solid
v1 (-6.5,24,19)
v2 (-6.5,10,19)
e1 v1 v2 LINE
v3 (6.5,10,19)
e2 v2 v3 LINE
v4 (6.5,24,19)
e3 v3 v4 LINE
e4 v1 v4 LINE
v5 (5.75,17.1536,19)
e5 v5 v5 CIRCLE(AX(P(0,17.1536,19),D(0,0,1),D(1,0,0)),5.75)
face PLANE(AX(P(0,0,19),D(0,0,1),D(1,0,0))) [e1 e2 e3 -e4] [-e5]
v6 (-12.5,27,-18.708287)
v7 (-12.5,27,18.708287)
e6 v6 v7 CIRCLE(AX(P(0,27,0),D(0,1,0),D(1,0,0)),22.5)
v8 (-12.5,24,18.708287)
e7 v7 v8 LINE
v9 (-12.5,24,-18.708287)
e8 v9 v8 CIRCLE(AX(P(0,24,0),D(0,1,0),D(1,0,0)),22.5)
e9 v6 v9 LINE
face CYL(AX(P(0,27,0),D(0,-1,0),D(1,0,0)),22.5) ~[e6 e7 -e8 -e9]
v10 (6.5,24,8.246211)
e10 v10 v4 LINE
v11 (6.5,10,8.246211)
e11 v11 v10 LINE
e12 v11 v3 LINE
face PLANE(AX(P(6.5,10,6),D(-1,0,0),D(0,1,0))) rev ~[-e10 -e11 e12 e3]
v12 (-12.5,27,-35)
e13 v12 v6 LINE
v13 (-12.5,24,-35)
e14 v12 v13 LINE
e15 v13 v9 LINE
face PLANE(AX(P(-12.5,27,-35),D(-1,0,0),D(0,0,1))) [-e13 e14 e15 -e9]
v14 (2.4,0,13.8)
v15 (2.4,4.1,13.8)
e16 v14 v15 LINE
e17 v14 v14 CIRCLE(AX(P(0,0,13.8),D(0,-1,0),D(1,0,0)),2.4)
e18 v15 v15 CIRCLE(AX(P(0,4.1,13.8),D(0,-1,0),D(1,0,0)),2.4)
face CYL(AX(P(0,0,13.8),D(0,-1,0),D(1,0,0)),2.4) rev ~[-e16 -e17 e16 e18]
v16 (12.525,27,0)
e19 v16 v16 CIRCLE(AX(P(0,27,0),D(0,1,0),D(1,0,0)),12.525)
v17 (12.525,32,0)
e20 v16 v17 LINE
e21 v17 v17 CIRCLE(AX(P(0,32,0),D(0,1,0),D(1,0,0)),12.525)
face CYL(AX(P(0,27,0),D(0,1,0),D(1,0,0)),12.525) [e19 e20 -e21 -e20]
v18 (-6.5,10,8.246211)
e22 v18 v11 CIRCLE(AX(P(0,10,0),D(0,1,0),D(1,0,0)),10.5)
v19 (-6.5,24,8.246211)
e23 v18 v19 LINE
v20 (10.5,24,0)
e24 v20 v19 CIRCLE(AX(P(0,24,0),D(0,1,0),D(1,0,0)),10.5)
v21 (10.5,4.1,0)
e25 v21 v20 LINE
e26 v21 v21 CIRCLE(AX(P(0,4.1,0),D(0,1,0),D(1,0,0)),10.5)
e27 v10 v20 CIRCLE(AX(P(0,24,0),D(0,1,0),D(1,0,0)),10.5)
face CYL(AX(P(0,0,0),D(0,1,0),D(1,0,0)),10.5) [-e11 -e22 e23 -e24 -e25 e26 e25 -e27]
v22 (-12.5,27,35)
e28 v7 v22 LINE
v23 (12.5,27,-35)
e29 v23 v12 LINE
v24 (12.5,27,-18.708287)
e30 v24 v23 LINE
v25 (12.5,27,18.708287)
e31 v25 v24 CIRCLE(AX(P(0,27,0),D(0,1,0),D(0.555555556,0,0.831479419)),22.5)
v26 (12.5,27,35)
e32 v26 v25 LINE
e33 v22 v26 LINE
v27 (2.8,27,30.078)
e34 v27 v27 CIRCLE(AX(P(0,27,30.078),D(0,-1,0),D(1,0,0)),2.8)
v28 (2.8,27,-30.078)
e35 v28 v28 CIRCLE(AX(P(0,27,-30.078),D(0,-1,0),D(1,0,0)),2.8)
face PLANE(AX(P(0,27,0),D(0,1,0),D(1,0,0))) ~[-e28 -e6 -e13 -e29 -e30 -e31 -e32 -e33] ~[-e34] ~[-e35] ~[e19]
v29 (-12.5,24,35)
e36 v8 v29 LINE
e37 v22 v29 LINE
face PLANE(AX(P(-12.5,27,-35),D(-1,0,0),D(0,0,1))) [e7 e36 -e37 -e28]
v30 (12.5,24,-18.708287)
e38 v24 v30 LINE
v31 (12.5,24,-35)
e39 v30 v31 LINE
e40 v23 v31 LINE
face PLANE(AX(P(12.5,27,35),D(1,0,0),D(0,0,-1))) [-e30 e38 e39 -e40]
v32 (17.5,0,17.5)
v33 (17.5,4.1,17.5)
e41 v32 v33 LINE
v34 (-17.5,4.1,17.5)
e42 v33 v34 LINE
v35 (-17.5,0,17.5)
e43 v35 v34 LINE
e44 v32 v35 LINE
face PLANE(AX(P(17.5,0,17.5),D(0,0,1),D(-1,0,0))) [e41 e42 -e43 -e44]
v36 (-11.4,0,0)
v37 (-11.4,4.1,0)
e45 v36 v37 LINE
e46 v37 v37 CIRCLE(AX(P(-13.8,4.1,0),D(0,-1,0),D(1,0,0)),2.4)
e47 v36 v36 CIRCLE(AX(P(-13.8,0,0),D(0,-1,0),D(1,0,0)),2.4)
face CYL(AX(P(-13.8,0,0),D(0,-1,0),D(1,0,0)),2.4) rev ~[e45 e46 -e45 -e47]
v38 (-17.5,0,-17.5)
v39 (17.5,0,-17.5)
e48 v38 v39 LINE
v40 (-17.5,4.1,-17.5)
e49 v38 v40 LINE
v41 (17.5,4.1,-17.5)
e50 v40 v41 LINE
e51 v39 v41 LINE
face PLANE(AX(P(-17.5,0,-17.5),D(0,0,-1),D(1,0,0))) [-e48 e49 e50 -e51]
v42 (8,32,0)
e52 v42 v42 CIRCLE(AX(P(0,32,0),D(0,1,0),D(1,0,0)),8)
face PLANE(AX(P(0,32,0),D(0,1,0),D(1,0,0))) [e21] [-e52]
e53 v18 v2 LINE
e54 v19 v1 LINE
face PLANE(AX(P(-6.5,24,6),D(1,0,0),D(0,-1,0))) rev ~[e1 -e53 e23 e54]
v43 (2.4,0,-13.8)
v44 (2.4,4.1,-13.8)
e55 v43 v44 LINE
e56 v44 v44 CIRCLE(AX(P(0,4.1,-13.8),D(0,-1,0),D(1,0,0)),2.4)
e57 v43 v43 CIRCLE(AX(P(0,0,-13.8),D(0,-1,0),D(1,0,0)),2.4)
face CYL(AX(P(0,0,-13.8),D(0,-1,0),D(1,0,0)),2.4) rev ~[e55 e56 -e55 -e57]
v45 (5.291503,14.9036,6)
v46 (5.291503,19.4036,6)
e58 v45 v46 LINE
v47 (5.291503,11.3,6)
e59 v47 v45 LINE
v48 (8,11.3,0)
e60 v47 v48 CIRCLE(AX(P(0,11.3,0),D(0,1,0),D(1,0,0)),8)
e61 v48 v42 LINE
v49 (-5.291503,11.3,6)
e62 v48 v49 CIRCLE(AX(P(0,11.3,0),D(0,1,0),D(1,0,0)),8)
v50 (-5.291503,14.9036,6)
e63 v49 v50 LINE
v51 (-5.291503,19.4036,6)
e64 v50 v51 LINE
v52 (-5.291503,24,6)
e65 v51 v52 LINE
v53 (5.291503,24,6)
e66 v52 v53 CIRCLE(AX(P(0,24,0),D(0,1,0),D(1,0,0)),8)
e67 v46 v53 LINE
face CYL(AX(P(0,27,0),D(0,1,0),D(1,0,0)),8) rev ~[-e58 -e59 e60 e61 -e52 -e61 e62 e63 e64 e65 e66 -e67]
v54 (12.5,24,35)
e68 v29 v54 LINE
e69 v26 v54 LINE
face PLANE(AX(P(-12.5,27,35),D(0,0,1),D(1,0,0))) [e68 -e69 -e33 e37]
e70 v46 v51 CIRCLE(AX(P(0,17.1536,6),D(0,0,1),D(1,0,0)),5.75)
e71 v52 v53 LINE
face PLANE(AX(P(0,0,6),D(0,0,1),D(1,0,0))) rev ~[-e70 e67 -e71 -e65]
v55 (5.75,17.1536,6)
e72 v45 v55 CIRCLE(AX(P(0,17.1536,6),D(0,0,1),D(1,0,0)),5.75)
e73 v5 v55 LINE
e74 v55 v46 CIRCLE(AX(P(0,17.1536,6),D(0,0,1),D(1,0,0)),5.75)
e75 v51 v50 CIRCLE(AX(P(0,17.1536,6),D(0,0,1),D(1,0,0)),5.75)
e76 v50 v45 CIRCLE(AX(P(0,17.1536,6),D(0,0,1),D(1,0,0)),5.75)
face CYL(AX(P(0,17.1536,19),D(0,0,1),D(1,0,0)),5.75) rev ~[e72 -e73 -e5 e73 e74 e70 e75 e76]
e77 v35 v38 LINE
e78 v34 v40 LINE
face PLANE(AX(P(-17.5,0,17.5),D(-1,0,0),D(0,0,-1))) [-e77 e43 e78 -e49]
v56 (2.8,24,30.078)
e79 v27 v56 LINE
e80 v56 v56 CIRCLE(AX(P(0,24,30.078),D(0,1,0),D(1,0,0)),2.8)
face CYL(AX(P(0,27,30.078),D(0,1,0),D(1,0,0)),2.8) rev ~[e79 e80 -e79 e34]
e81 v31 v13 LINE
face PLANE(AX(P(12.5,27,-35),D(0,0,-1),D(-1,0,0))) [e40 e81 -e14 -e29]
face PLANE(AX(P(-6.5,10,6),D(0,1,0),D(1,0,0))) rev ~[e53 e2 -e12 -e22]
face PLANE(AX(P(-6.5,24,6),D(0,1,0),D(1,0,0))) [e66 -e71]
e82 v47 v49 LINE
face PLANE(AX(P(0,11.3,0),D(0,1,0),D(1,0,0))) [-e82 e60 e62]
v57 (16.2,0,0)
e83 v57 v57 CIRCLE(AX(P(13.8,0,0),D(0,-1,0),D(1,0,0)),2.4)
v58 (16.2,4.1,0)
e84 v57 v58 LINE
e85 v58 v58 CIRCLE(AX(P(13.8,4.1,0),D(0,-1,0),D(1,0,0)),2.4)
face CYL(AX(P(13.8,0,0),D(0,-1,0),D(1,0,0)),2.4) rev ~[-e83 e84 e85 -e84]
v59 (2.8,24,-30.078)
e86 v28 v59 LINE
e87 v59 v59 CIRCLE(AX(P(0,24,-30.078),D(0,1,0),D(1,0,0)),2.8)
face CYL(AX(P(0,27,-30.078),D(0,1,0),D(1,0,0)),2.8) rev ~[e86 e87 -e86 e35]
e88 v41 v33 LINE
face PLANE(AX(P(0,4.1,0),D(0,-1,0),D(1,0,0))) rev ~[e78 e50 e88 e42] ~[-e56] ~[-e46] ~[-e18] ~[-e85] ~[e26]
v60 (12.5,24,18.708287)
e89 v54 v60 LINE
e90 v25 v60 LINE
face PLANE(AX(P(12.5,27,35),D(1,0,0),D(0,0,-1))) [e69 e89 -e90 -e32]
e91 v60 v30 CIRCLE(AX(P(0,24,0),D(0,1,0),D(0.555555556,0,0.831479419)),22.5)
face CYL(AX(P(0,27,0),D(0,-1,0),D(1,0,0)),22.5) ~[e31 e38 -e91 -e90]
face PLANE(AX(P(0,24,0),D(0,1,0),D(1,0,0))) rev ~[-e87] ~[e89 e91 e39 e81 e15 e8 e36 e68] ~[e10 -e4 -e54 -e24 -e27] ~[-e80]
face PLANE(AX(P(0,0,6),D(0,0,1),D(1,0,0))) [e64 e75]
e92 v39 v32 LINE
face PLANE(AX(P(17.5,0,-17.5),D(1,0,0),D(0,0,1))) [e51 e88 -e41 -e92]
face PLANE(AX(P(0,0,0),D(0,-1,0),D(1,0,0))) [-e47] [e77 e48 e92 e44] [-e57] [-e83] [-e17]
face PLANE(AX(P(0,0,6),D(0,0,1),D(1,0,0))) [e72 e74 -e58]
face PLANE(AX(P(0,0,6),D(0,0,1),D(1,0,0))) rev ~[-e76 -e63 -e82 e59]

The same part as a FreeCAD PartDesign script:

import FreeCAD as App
import Part
import Sketcher
Q = App.Units.Quantity


def add_polygon(sketch, points):
    """Adds a closed chain of lines whose ends are joined by coincident constraints."""
    first, n = sketch.GeometryCount, len(points)
    for a, b in zip(points, points[1:] + points[:1]):
        sketch.addGeometry(Part.LineSegment(App.Vector(*a, 0), App.Vector(*b, 0)), False)
    for i in range(n):
        sketch.addConstraint(Sketcher.Constraint("Coincident", first + i, 2, first + (i + 1) % n, 1))

doc = App.newDocument("Part")
body = doc.addObject("PartDesign::Body", "Body")

# Sketch on XY plane
sketch1 = doc.addObject("Sketcher::SketchObject", "Sketch")
body.addObject(sketch1)
sketch1.AttachmentSupport = (doc.XY_Plane, [""])
sketch1.MapMode = "FlatFace"
add_polygon(sketch1, [(12.525, 27), (12.525, 32), (8, 32), (8, 0), (10.5, 0), (10.5, 24), (22.5, 24), (22.5, 27)])  # lines 0-7
sketch1.addConstraint([
    Sketcher.Constraint("Vertical", 0),
    Sketcher.Constraint("Horizontal", 1),
    Sketcher.Constraint("Vertical", 2),
    Sketcher.Constraint("Horizontal", 3),
    Sketcher.Constraint("Vertical", 4),
    Sketcher.Constraint("Horizontal", 5),
    Sketcher.Constraint("Vertical", 6),
    Sketcher.Constraint("Horizontal", 7),
    Sketcher.Constraint("PointOnObject", 2, 2, -1),
    Sketcher.Constraint("DistanceX", 5, 1, 5, 2, Q("12 mm")),
    Sketcher.Constraint("DistanceY", 0, 1, 0, 2, Q("5 mm")),
    Sketcher.Constraint("DistanceY", 2, 2, 2, 1, Q("32 mm")),
    Sketcher.Constraint("DistanceY", 4, 1, 4, 2, Q("24 mm")),
    Sketcher.Constraint("DistanceX", 3, 1, 3, 2, Q("2.5 mm")),
    Sketcher.Constraint("DistanceX", -1, 1, 1, 2, Q("8 mm")),
    Sketcher.Constraint("DistanceX", 1, 2, 1, 1, Q("4.525 mm")),
])
revolution = doc.addObject("PartDesign::Revolution", "Revolution")
body.addObject(revolution)
revolution.Profile = sketch1
revolution.ReferenceAxis = (sketch1, ["V_Axis"])
revolution.Angle = 360

# Sketch on XZ plane
sketch2 = doc.addObject("Sketcher::SketchObject", "Sketch001")
body.addObject(sketch2)
sketch2.AttachmentSupport = (doc.XZ_Plane, [""])
sketch2.MapMode = "FlatFace"
sketch2.AttachmentOffset = App.Placement(App.Vector(0, 0, -27), App.Rotation())
add_polygon(sketch2, [(12.5, 35), (12.5, -35), (-12.5, -35), (-12.5, 35)])  # lines 0-3
sketch2.addConstraint([
    Sketcher.Constraint("Vertical", 0),
    Sketcher.Constraint("Horizontal", 1),
    Sketcher.Constraint("Vertical", 2),
    Sketcher.Constraint("Horizontal", 3),
    Sketcher.Constraint("Symmetric", 0, 2, 2, 2, -1, 1),
    Sketcher.Constraint("DistanceX", 1, 2, 1, 1, Q("25 mm")),
    Sketcher.Constraint("DistanceY", 0, 2, 0, 1, Q("70 mm")),
])
pad1 = doc.addObject("PartDesign::Pad", "Pad")
body.addObject(pad1)
pad1.Profile = sketch2
pad1.Length = 3

# Sketch on XZ plane
sketch3 = doc.addObject("Sketcher::SketchObject", "Sketch002")
body.addObject(sketch3)
sketch3.AttachmentSupport = (doc.XZ_Plane, [""])
sketch3.MapMode = "FlatFace"
sketch3.AttachmentOffset = App.Placement(App.Vector(0, 0, -27), App.Rotation())
sketch3.addGeometry(Part.Circle(App.Vector(0, 0, 0), App.Vector(0, 0, 1), 8), False)
sketch3.addConstraint([
    Sketcher.Constraint("Coincident", 0, 3, -1, 1),
    Sketcher.Constraint("Diameter", 0, Q("16 mm")),
])
pocket1 = doc.addObject("PartDesign::Pocket", "Pocket")
body.addObject(pocket1)
pocket1.Profile = sketch3
pocket1.Length = 3
pocket1.Reversed = True

# Sketch on XZ plane
sketch4 = doc.addObject("Sketcher::SketchObject", "Sketch003")
body.addObject(sketch4)
sketch4.AttachmentSupport = (doc.XZ_Plane, [""])
sketch4.MapMode = "FlatFace"
sketch4.AttachmentOffset = App.Placement(App.Vector(0, 0, -27), App.Rotation())
sketch4.addGeometry([
    Part.Circle(App.Vector(0, -30.078, 0), App.Vector(0, 0, 1), 2.8),
    Part.Circle(App.Vector(0, 30.078, 0), App.Vector(0, 0, 1), 2.8),
], False)
sketch4.addConstraint([
    Sketcher.Constraint("Equal", 0, 1),
    Sketcher.Constraint("Symmetric", 0, 3, 1, 3, -1, 1),
    Sketcher.Constraint("PointOnObject", 0, 3, -2),
    Sketcher.Constraint("Diameter", 0, Q("5.6 mm")),
    Sketcher.Constraint("DistanceY", 0, 3, -1, 1, Q("30.078 mm")),
])
pocket2 = doc.addObject("PartDesign::Pocket", "Pocket001")
body.addObject(pocket2)
pocket2.Profile = sketch4
pocket2.Length = 3
pocket2.Reversed = True

# Sketch on XZ plane
sketch5 = doc.addObject("Sketcher::SketchObject", "Sketch004")
body.addObject(sketch5)
sketch5.AttachmentSupport = (doc.XZ_Plane, [""])
sketch5.MapMode = "FlatFace"
add_polygon(sketch5, [(17.5, -17.5), (17.5, 17.5), (-17.5, 17.5), (-17.5, -17.5)])  # lines 0-3
sketch5.addGeometry(Part.Circle(App.Vector(0, -13.8, 0), App.Vector(0, 0, 1), 2.4), False)  # 4
sketch5.addGeometry(Part.Circle(App.Vector(-13.8, 0, 0), App.Vector(0, 0, 1), 2.4), False)  # 5
sketch5.addGeometry(Part.Circle(App.Vector(13.8, 0, 0), App.Vector(0, 0, 1), 2.4), False)  # 6
sketch5.addGeometry(Part.Circle(App.Vector(0, 13.8, 0), App.Vector(0, 0, 1), 2.4), False)  # 7
sketch5.addConstraint([
    Sketcher.Constraint("Vertical", 0),
    Sketcher.Constraint("Horizontal", 1),
    Sketcher.Constraint("Vertical", 2),
    Sketcher.Constraint("Horizontal", 3),
    Sketcher.Constraint("Equal", 4, 5),
    Sketcher.Constraint("Equal", 5, 6),
    Sketcher.Constraint("Equal", 6, 7),
    Sketcher.Constraint("Symmetric", 5, 3, 6, 3, -1, 1),
    Sketcher.Constraint("Symmetric", 4, 3, 7, 3, -1, 1),
    Sketcher.Constraint("Symmetric", 0, 2, 2, 2, -1, 1),
    Sketcher.Constraint("PointOnObject", 4, 3, -2),
    Sketcher.Constraint("PointOnObject", 5, 3, -1),
    Sketcher.Constraint("Equal", 3, 0),
    Sketcher.Constraint("Diameter", 4, Q("4.8 mm")),
    Sketcher.Constraint("DistanceX", 1, 2, 1, 1, Q("35 mm")),
    Sketcher.Constraint("DistanceY", 4, 3, -1, 1, Q("13.8 mm")),
    Sketcher.Constraint("DistanceX", 5, 3, -1, 1, Q("13.8 mm")),
])
pad2 = doc.addObject("PartDesign::Pad", "Pad001")
body.addObject(pad2)
pad2.Profile = sketch5
pad2.Length = 4.1
pad2.Reversed = True

# Sketch on XY plane
sketch6 = doc.addObject("Sketcher::SketchObject", "Sketch005")
body.addObject(sketch6)
sketch6.AttachmentSupport = (doc.XY_Plane, [""])
sketch6.MapMode = "FlatFace"
sketch6.AttachmentOffset = App.Placement(App.Vector(0, 0, 6), App.Rotation())
add_polygon(sketch6, [(6.5, 24), (-6.5, 24), (-6.5, 10), (6.5, 10)])  # lines 0-3
sketch6.addConstraint([
    Sketcher.Constraint("Horizontal", 0),
    Sketcher.Constraint("Vertical", 1),
    Sketcher.Constraint("Horizontal", 2),
    Sketcher.Constraint("Vertical", 3),
    Sketcher.Constraint("DistanceX", 0, 2, 0, 1, Q("13 mm")),
    Sketcher.Constraint("DistanceY", 1, 2, 1, 1, Q("14 mm")),
    Sketcher.Constraint("DistanceY", -1, 1, 0, 2, Q("24 mm")),
    Sketcher.Constraint("DistanceX", 0, 2, -1, 1, Q("6.5 mm")),
])
pad3 = doc.addObject("PartDesign::Pad", "Pad002")
body.addObject(pad3)
pad3.Profile = sketch6
pad3.Length = 13

# Sketch on XY plane
sketch7 = doc.addObject("Sketcher::SketchObject", "Sketch006")
body.addObject(sketch7)
sketch7.AttachmentSupport = (doc.XY_Plane, [""])
sketch7.MapMode = "FlatFace"
sketch7.AttachmentOffset = App.Placement(App.Vector(0, 0, 19), App.Rotation())
sketch7.addGeometry(Part.Circle(App.Vector(0, 17.1536, 0), App.Vector(0, 0, 1), 5.75), False)
sketch7.addConstraint([
    Sketcher.Constraint("PointOnObject", 0, 3, -2),
    Sketcher.Constraint("Diameter", 0, Q("11.5 mm")),
    Sketcher.Constraint("DistanceY", -1, 1, 0, 3, Q("17.1536 mm")),
])
pocket3 = doc.addObject("PartDesign::Pocket", "Pocket002")
body.addObject(pocket3)
pocket3.Profile = sketch7
pocket3.Length = 13

# Sketch on XZ plane
sketch8 = doc.addObject("Sketcher::SketchObject", "Sketch007")
body.addObject(sketch8)
sketch8.AttachmentSupport = (doc.XZ_Plane, [""])
sketch8.MapMode = "FlatFace"
sketch8.AttachmentOffset = App.Placement(App.Vector(0, 0, -4.1), App.Rotation())
sketch8.addGeometry(Part.Circle(App.Vector(0, 0, 0), App.Vector(0, 0, 1), 8), False)
sketch8.addConstraint([
    Sketcher.Constraint("Coincident", 0, 3, -1, 1),
    Sketcher.Constraint("Diameter", 0, Q("16 mm")),
])
pad4 = doc.addObject("PartDesign::Pad", "Pad003")
body.addObject(pad4)
pad4.Profile = sketch8
pad4.Length = 7.2
pad4.Reversed = True

doc.recompute()
